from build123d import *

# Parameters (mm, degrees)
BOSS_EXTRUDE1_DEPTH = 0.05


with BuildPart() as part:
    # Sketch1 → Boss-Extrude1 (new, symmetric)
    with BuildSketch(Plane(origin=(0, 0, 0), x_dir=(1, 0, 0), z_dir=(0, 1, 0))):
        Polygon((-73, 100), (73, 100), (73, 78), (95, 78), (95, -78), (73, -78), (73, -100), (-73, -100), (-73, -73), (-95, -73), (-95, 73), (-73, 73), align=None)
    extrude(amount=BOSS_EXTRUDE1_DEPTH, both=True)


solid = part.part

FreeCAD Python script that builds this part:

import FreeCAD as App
import Part
import Sketcher
from FreeCAD import Vector
Q = App.Units.Quantity

doc = App.newDocument("Part")
body = doc.addObject("PartDesign::Body", "Body")

# Sketch on XZ plane
sketch1 = body.newObject("Sketcher::SketchObject", "Sketch")
sketch1.AttachmentSupport = (doc.getObject("XZ_Plane"), [""])
sketch1.MapMode = "FlatFace"
sketch1.addGeometry([
    Part.LineSegment(Vector(73, -100, 0), Vector(-73, -100, 0)),  # 0
    Part.LineSegment(Vector(-73, -100, 0), Vector(-73, -73, 0)),  # 1
    Part.LineSegment(Vector(-73, -73, 0), Vector(-95, -73, 0)),  # 2
    Part.LineSegment(Vector(-95, -73, 0), Vector(-95, 73, 0)),  # 3
    Part.LineSegment(Vector(-95, 73, 0), Vector(-73, 73, 0)),  # 4
    Part.LineSegment(Vector(-73, 73, 0), Vector(-73, 100, 0)),  # 5
    Part.LineSegment(Vector(-73, 100, 0), Vector(73, 100, 0)),  # 6
    Part.LineSegment(Vector(73, 100, 0), Vector(73, 78, 0)),  # 7
    Part.LineSegment(Vector(73, 78, 0), Vector(95, 78, 0)),  # 8
    Part.LineSegment(Vector(95, 78, 0), Vector(95, -78, 0)),  # 9
    Part.LineSegment(Vector(95, -78, 0), Vector(73, -78, 0)),  # 10
    Part.LineSegment(Vector(73, -78, 0), Vector(73, -100, 0)),  # 11
], False)
sketch1.addConstraint([
    Sketcher.Constraint("Coincident", 0, 2, 1, 1),
    Sketcher.Constraint("Coincident", 1, 2, 2, 1),
    Sketcher.Constraint("Coincident", 2, 2, 3, 1),
    Sketcher.Constraint("Coincident", 3, 2, 4, 1),
    Sketcher.Constraint("Coincident", 4, 2, 5, 1),
    Sketcher.Constraint("Coincident", 5, 2, 6, 1),
    Sketcher.Constraint("Coincident", 6, 2, 7, 1),
    Sketcher.Constraint("Coincident", 7, 2, 8, 1),
    Sketcher.Constraint("Coincident", 8, 2, 9, 1),
    Sketcher.Constraint("Coincident", 9, 2, 10, 1),
    Sketcher.Constraint("Coincident", 10, 2, 11, 1),
    Sketcher.Constraint("Coincident", 11, 2, 0, 1),
    Sketcher.Constraint("Horizontal", 0),
    Sketcher.Constraint("Vertical", 1),
    Sketcher.Constraint("Horizontal", 2),
    Sketcher.Constraint("Vertical", 3),
    Sketcher.Constraint("Horizontal", 4),
    Sketcher.Constraint("Vertical", 5),
    Sketcher.Constraint("Horizontal", 6),
    Sketcher.Constraint("Vertical", 7),
    Sketcher.Constraint("Horizontal", 8),
    Sketcher.Constraint("Vertical", 9),
    Sketcher.Constraint("Horizontal", 10),
    Sketcher.Constraint("Vertical", 11),
    Sketcher.Constraint("Symmetric", 0, 2, 6, 2, -1, 1),
    Sketcher.Constraint("Symmetric", 1, 2, 4, 2, -1),
    Sketcher.Constraint("Symmetric", 7, 2, 10, 2, -1),
    Sketcher.Constraint("Equal", 4, 8),
    Sketcher.Constraint("Equal", 6, 3),
    Sketcher.Constraint("Equal", 10, 7),
    Sketcher.Constraint("DistanceX", 0, 2, 0, 1, Q("146 mm")),
    Sketcher.Constraint("DistanceX", 2, 2, 2, 1, Q("22 mm")),
    Sketcher.Constraint("DistanceY", 1, 1, 1, 2, Q("27 mm")),
])
pad1 = body.newObject("PartDesign::Pad", "Pad")
pad1.Profile = sketch1
pad1.Length = 0.1
pad1.Midplane = True

doc.recompute()
